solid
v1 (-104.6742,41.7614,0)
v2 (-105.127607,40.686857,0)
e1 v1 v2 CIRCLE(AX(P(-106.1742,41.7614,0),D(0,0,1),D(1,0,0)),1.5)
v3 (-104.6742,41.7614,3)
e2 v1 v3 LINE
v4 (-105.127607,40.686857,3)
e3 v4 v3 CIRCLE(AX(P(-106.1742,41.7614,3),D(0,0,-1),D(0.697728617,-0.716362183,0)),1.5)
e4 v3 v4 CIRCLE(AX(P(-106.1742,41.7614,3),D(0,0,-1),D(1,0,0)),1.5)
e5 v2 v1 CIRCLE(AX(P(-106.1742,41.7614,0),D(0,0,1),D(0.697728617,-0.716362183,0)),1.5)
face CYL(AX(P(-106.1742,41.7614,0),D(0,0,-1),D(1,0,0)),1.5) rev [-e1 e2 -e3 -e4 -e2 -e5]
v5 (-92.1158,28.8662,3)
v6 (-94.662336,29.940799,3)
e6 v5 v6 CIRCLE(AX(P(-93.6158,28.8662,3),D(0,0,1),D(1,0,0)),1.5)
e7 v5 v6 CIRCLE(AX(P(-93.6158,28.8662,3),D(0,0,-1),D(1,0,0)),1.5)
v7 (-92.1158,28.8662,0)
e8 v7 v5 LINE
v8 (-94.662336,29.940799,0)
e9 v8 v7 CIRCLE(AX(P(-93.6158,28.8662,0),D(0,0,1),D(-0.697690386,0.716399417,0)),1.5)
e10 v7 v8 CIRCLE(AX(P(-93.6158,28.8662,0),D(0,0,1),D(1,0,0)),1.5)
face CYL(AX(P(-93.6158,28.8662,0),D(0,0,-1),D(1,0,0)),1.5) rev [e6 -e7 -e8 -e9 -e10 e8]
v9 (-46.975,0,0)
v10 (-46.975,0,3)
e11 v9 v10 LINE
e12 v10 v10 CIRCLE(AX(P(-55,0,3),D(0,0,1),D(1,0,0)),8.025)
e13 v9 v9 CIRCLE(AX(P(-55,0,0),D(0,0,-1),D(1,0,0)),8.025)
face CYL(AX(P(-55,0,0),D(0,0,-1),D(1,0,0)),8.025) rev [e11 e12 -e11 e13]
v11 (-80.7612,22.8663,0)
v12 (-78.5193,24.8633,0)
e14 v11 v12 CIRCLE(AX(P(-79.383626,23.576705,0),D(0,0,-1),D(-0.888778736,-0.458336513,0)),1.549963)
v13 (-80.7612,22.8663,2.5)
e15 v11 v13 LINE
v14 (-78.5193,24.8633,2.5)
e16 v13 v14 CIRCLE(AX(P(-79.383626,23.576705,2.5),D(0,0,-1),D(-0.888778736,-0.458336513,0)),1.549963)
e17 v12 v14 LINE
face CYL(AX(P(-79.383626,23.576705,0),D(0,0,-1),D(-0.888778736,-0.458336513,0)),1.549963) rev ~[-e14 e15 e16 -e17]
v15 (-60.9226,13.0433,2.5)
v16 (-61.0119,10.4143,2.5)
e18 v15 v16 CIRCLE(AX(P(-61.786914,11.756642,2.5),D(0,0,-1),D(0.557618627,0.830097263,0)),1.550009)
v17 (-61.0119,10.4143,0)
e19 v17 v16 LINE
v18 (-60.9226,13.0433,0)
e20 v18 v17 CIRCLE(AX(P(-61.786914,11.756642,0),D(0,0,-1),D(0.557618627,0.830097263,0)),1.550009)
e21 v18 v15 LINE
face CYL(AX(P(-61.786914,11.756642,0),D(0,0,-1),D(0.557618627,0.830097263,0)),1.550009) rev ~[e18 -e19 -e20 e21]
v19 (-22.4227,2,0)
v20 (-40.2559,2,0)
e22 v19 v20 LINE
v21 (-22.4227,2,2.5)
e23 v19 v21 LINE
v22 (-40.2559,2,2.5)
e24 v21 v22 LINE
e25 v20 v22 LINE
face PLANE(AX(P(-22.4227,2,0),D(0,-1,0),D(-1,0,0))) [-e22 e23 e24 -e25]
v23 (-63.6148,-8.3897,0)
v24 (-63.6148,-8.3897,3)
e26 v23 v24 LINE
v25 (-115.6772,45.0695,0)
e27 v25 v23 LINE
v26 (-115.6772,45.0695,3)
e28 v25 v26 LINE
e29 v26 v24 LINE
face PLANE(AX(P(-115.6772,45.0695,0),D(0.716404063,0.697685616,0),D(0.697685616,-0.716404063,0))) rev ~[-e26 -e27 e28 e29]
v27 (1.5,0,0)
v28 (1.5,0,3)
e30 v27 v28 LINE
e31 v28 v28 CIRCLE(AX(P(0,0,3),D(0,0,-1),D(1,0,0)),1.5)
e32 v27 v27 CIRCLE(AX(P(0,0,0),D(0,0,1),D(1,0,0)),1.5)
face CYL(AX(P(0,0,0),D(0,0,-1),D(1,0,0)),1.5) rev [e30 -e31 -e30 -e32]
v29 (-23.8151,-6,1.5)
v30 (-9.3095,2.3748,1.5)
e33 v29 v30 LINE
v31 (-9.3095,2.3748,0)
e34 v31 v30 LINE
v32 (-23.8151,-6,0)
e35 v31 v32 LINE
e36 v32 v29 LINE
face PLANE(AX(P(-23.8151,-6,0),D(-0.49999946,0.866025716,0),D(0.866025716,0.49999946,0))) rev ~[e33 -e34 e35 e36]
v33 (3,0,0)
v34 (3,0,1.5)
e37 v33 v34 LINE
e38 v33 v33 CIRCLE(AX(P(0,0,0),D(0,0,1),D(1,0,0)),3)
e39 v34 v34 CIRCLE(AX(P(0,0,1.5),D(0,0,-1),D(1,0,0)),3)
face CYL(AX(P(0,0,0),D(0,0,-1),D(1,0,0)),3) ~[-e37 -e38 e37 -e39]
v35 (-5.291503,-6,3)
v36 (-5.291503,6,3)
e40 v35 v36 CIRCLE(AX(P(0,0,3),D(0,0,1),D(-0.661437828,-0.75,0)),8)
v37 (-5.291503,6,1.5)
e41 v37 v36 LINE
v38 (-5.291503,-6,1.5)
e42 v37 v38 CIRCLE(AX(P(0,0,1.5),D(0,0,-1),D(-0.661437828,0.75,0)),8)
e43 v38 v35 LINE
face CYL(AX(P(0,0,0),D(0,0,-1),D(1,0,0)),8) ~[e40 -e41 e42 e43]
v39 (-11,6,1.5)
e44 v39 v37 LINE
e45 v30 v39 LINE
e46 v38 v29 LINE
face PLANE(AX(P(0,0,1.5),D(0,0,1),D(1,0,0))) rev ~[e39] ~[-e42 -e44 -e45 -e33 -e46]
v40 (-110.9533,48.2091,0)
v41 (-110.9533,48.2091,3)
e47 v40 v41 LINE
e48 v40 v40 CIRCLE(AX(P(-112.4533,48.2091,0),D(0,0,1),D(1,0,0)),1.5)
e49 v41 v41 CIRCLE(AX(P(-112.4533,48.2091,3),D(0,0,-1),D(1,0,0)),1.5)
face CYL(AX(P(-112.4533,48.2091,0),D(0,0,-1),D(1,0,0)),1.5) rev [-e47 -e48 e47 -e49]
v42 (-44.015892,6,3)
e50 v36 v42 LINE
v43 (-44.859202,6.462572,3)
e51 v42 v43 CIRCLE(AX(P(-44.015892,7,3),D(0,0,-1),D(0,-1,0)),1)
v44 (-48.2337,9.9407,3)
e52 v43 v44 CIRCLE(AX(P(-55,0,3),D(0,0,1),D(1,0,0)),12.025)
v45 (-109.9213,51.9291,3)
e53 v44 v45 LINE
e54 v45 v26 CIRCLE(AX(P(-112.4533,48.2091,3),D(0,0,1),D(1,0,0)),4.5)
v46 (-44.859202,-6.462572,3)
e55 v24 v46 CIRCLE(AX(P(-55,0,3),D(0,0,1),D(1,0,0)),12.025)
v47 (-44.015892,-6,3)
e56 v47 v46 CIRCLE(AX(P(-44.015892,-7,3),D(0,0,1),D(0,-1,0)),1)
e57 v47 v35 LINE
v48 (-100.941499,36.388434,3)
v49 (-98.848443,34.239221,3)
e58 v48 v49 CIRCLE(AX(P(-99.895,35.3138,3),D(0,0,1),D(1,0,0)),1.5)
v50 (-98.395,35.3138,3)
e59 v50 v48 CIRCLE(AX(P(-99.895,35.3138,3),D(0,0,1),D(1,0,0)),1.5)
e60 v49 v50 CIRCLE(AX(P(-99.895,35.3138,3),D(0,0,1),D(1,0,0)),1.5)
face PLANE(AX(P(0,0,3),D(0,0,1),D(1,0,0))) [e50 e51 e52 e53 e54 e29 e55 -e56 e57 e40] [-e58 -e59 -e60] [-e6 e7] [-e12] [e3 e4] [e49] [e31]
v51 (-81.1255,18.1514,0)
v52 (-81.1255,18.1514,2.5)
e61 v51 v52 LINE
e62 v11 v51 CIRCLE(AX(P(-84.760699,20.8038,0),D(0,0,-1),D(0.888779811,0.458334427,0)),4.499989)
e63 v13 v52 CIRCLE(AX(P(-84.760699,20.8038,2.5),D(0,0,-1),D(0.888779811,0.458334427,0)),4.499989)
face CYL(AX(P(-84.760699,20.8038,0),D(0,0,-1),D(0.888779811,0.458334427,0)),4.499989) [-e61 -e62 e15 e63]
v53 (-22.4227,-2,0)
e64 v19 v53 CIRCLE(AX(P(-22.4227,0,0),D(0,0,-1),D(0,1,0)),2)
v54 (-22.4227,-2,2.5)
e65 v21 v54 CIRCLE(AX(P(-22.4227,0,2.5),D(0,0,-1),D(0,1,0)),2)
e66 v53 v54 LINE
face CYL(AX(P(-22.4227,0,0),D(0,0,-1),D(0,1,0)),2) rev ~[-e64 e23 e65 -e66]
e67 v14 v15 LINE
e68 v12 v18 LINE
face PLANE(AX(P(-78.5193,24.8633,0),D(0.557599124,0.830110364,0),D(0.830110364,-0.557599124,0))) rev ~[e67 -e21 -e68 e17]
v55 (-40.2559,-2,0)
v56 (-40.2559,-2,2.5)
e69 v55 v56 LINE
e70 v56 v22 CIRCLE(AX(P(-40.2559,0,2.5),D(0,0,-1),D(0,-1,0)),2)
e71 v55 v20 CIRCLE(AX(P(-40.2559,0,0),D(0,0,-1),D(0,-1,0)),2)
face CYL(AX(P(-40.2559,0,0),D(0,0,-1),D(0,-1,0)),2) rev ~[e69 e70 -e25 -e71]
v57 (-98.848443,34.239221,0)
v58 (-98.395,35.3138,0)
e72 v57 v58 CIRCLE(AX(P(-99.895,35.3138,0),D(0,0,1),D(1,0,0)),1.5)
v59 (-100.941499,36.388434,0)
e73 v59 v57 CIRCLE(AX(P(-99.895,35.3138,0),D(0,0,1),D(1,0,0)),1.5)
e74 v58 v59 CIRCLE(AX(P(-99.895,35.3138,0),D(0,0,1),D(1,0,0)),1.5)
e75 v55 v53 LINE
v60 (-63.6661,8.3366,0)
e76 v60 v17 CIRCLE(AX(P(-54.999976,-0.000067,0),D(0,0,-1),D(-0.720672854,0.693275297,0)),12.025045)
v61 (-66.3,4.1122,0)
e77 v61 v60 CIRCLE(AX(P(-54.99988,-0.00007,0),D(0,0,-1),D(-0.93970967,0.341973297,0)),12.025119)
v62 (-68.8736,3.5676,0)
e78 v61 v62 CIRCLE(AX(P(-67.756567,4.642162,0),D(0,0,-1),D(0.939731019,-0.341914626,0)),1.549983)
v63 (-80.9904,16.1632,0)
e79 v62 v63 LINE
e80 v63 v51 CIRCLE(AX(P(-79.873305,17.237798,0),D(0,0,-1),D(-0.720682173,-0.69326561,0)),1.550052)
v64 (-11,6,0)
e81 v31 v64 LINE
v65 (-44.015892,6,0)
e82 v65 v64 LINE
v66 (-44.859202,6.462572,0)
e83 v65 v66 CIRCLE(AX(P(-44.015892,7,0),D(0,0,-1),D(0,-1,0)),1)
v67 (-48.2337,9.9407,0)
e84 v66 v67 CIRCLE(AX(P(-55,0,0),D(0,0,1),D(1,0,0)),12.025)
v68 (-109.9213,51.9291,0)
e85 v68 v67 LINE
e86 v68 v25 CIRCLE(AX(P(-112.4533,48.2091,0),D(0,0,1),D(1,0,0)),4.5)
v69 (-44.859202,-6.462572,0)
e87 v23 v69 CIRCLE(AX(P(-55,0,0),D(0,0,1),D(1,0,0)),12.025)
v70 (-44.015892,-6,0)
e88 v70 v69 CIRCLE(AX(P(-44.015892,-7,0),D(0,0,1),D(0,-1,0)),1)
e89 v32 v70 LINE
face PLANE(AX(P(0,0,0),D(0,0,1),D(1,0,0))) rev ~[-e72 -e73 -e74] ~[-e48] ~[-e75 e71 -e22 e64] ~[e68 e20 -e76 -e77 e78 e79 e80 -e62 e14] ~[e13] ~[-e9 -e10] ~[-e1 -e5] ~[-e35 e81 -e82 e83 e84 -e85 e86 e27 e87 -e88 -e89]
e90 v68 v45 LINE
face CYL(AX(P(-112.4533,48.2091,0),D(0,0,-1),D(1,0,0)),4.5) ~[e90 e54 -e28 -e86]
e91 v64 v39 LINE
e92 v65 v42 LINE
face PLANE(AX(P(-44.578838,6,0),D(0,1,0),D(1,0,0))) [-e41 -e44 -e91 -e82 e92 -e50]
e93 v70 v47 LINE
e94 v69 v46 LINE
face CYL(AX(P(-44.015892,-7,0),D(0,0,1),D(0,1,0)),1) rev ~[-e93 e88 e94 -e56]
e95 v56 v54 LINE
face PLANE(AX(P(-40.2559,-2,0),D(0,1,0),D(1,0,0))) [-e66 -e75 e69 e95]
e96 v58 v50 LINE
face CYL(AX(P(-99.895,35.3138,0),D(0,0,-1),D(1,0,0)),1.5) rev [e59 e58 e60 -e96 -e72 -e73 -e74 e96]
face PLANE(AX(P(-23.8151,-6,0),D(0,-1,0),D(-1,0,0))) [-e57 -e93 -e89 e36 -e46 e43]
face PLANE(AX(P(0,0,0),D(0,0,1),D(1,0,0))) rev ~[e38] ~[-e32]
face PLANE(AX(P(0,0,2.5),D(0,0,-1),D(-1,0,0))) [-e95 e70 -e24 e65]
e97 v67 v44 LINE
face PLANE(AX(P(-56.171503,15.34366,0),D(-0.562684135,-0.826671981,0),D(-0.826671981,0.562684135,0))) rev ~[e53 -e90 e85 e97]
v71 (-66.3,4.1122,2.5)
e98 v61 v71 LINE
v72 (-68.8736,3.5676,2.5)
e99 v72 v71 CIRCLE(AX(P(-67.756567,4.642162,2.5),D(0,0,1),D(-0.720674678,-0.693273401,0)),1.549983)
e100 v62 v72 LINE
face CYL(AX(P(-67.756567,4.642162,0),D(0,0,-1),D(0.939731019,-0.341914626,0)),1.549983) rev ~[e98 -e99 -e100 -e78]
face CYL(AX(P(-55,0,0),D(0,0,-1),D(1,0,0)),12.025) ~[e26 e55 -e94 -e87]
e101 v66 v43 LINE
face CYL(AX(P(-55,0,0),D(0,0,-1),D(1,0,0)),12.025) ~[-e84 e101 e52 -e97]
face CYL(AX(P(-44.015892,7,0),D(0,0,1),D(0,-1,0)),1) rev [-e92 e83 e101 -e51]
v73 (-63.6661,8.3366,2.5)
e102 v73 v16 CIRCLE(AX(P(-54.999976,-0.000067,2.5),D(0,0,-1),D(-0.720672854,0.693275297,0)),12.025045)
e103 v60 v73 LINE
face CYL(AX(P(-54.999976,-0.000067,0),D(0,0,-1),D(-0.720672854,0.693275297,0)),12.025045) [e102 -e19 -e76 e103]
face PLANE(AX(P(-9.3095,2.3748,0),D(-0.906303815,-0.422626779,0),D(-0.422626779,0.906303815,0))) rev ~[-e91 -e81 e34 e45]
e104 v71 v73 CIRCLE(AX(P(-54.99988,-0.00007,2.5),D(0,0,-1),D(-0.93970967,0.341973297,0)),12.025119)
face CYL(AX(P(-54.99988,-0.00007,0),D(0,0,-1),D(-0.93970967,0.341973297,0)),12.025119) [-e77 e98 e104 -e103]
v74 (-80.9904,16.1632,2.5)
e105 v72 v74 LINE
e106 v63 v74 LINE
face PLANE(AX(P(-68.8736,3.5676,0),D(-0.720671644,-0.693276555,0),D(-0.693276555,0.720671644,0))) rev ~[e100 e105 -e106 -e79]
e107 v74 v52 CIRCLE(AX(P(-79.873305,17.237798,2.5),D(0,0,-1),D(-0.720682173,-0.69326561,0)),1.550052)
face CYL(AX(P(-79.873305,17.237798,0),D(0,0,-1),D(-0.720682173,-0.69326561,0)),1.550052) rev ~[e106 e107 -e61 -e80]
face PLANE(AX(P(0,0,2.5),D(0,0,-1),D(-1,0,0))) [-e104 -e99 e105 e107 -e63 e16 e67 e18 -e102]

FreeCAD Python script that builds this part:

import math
import FreeCAD as App
import Part
import Sketcher
Q = App.Units.Quantity


def edges_at(feature, points):
    """Names of the edges that pass closest to the given points."""
    edges = feature.Shape.Edges
    near = lambda p: min(range(len(edges)), key=lambda i: edges[i].distToShape(Part.Vertex(*p))[0])
    return sorted({f"Edge{near(p) + 1}" for p in points})

doc = App.newDocument("Part")
body = doc.addObject("PartDesign::Body", "Body")

# Sketch on XY plane
sketch1 = doc.addObject("Sketcher::SketchObject", "Sketch")
body.addObject(sketch1)
sketch1.AttachmentSupport = (doc.XY_Plane, [""])
sketch1.MapMode = "FlatFace"
sketch1.addGeometry([
    Part.LineSegment(App.Vector(-44.578838, -6, 0), App.Vector(-5.291503, -6, 0)),  # 0
    Part.ArcOfCircle(Part.Circle(App.Vector(0, 0, 0), App.Vector(0, 0, 1), 8), math.radians(-131.409622), math.radians(131.409622)),  # 1
    Part.LineSegment(App.Vector(-5.291503, 6, 0), App.Vector(-44.578838, 6, 0)),  # 2
    Part.ArcOfCircle(Part.Circle(App.Vector(-55, 0, 0), App.Vector(0, 0, 1), 12.025), math.radians(29.931251), math.radians(55.758199)),  # 3
    Part.LineSegment(App.Vector(-48.2337, 9.9407, 0), App.Vector(-109.9213, 51.9291, 0)),  # 4
    Part.ArcOfCircle(Part.Circle(App.Vector(-112.4533, 48.2091, 0), App.Vector(0, 0, 1), 4.5), math.radians(55.759029), math.radians(224.241023)),  # 5
    Part.LineSegment(App.Vector(-115.6772, 45.0695, 0), App.Vector(-63.6148, -8.3897, 0)),  # 6
    Part.ArcOfCircle(Part.Circle(App.Vector(-55, 0, 0), App.Vector(0, 0, 1), 12.025), math.radians(-135.758418), math.radians(-29.931251)),  # 7
    Part.Circle(App.Vector(-55, 0, 0), App.Vector(0, 0, 1), 8.025),  # 8
    Part.Circle(App.Vector(-106.1742, 41.7614, 0), App.Vector(0, 0, 1), 1.5),  # 9
    Part.Circle(App.Vector(-93.6158, 28.8662, 0), App.Vector(0, 0, 1), 1.5),  # 10
    Part.ArcOfCircle(Part.Circle(App.Vector(-99.895, 35.3138, 0), App.Vector(0, 0, 1), 1.5), math.radians(134.24006), math.radians(314.243117)),  # 11
    Part.ArcOfCircle(Part.Circle(App.Vector(-99.895, 35.3138, 0), App.Vector(0, 0, 1), 1.5), math.radians(-45.756883), math.radians(134.24006)),  # 12
    Part.Circle(App.Vector(-112.4533, 48.2091, 0), App.Vector(0, 0, 1), 1.5),  # 13
    Part.Circle(App.Vector(0, 0, 0), App.Vector(0, 0, 1), 1.5),  # 14
], False)
sketch1.addConstraint([
    Sketcher.Constraint("Coincident", 0, 2, 1, 1),
    Sketcher.Constraint("Coincident", 1, 2, 2, 1),
    Sketcher.Constraint("Coincident", 2, 2, 3, 1),
    Sketcher.Constraint("Tangent", 3, 2, 4, 1),
    Sketcher.Constraint("Tangent", 4, 2, 5, 1),
    Sketcher.Constraint("Tangent", 5, 2, 6, 1),
    Sketcher.Constraint("Tangent", 6, 2, 7, 1),
    Sketcher.Constraint("Coincident", 7, 2, 0, 1),
    Sketcher.Constraint("Tangent", 11, 1, 12, 2),
    Sketcher.Constraint("Coincident", 12, 1, 11, 2),
    Sketcher.Constraint("Horizontal", 0),
    Sketcher.Constraint("Horizontal", 2),
    Sketcher.Constraint("Coincident", 1, 3, -1, 1),
    Sketcher.Constraint("Coincident", 14, 3, -1, 1),
    Sketcher.Constraint("Coincident", 7, 3, 3, 3),
    Sketcher.Constraint("Coincident", 8, 3, 3, 3),
    Sketcher.Constraint("Coincident", 13, 3, 5, 3),
    Sketcher.Constraint("Equal", 3, 7),
    Sketcher.Constraint("Equal", 9, 10),
    Sketcher.Constraint("Equal", 10, 11),
    Sketcher.Constraint("Equal", 12, 13),
    Sketcher.Constraint("Equal", 13, 14),
    Sketcher.Constraint("Symmetric", 2, 2, 7, 2, -1),
    Sketcher.Constraint("Diameter", 9, 3.0),
    Sketcher.Constraint("Radius", 1, 8.0),
    Sketcher.Constraint("Radius", 5, 4.5),
    Sketcher.Constraint("Diameter", 8, 16.05),
    Sketcher.Constraint("DistanceX", 3, 3, -1, 1, 55.0),
    Sketcher.Constraint("DistanceY", 0, 2, -1, 1, 6.0),
    Sketcher.Constraint("Radius", 3, 12.025),
    Sketcher.Constraint("DistanceY", 5, 3, 4, 2, 3.72),
    Sketcher.Constraint("DistanceY", -1, 1, 5, 3, 48.209),
    Sketcher.Constraint("DistanceX", 11, 3, -1, 1, 99.895),
    Sketcher.Constraint("DistanceX", 5, 3, 9, 3, 6.279),
    Sketcher.Constraint("DistanceY", 10, 3, 5, 3, 19.343),
    Sketcher.Constraint("DistanceY", 11, 1, 9, 3, 5.373),
    Sketcher.Constraint("DistanceX", 11, 1, 12, 1, 2.093),
    Sketcher.Constraint("DistanceY", 10, 3, 12, 1, 5.373),
    Sketcher.Constraint("DistanceX", 10, 3, -1, 1, 93.6158),
    Sketcher.Constraint("DistanceY", -1, 1, 11, 3, 35.3138),
])
pad1 = doc.addObject("PartDesign::Pad", "Pad")
body.addObject(pad1)
pad1.Profile = sketch1
pad1.Length = 3

# Sketch on XY plane
sketch2 = doc.addObject("Sketcher::SketchObject", "Sketch001")
body.addObject(sketch2)
sketch2.AttachmentSupport = (doc.XY_Plane, [""])
sketch2.MapMode = "FlatFace"
sketch2.addGeometry([
    Part.LineSegment(App.Vector(-23.8151, -6, 0), App.Vector(-5.291503, -6, 0)),  # 0
    Part.ArcOfCircle(Part.Circle(App.Vector(0, 0, 0), App.Vector(0, 0, 1), 8), math.radians(-131.409622), math.radians(131.409622)),  # 1
    Part.LineSegment(App.Vector(-5.291503, 6, 0), App.Vector(-11, 6, 0)),  # 2
    Part.LineSegment(App.Vector(-11, 6, 0), App.Vector(-9.3095, 2.3748, 0)),  # 3
    Part.LineSegment(App.Vector(-9.3095, 2.3748, 0), App.Vector(-23.8151, -6, 0)),  # 4
    Part.Circle(App.Vector(0, 0, 0), App.Vector(0, 0, 1), 3),  # 5
], False)
sketch2.addConstraint([
    Sketcher.Constraint("Coincident", 0, 2, 1, 1),
    Sketcher.Constraint("Coincident", 1, 2, 2, 1),
    Sketcher.Constraint("Coincident", 2, 2, 3, 1),
    Sketcher.Constraint("Coincident", 3, 2, 4, 1),
    Sketcher.Constraint("Coincident", 4, 2, 0, 1),
    Sketcher.Constraint("Horizontal", 0),
    Sketcher.Constraint("Horizontal", 2),
    Sketcher.Constraint("Coincident", 1, 3, -1, 1),
    Sketcher.Constraint("Coincident", 5, 3, -1, 1),
    Sketcher.Constraint("Vertical", 0, 2, 1, 2),
    Sketcher.Constraint("Diameter", 5, 6.0),
    Sketcher.Constraint("Radius", 1, 8.0),
    Sketcher.Constraint("Angle", 3, Q("-64.9995 deg")),
    Sketcher.Constraint("Distance", 3, 4.0),
    Sketcher.Constraint("DistanceY", 0, 2, -1, 1, 6.0),
    Sketcher.Constraint("DistanceX", 2, 2, -1, 1, 11.0),
    Sketcher.Constraint("Angle", 4, Q("-150 deg")),
])
pocket1 = doc.addObject("PartDesign::Pocket", "Pocket")
body.addObject(pocket1)
pocket1.Profile = sketch2
pocket1.Length = 1.5
pocket1.Reversed = True

# Sketch on XY plane
sketch3 = doc.addObject("Sketcher::SketchObject", "Sketch002")
body.addObject(sketch3)
sketch3.AttachmentSupport = (doc.XY_Plane, [""])
sketch3.MapMode = "FlatFace"
sketch3.addGeometry([
    Part.ArcOfCircle(Part.Circle(App.Vector(-61.7868, 11.7567, 0), App.Vector(0, 0, 1), 1.549897), math.radians(-60.004322), math.radians(56.111025)),  # 0
    Part.ArcOfCircle(Part.Circle(App.Vector(-55, 0, 0), App.Vector(0, 0, 1), 12.025033), math.radians(119.996703), math.radians(136.110212)),  # 1
    Part.ArcOfCircle(Part.Circle(App.Vector(-55, 0, 0), App.Vector(0, 0, 1), 12.025033), math.radians(136.110212), math.radians(160.002971)),  # 2
    Part.ArcOfCircle(Part.Circle(App.Vector(-67.7566, 4.6422, 0), App.Vector(0, 0, 1), 1.550027), math.radians(-136.10834), math.radians(-19.994476)),  # 3
    Part.LineSegment(App.Vector(-68.8736, 3.5676, 0), App.Vector(-80.9904, 16.1632, 0)),  # 4
    Part.ArcOfCircle(Part.Circle(App.Vector(-79.8733, 17.2378, 0), App.Vector(0, 0, 1), 1.550057), math.radians(143.885663), math.radians(223.889097)),  # 5
    Part.ArcOfCircle(Part.Circle(App.Vector(-84.7607, 20.8038, 0), App.Vector(0, 0, 1), 4.49999), math.radians(-36.116116), math.radians(27.279681)),  # 6
    Part.ArcOfCircle(Part.Circle(App.Vector(-79.3836, 23.5767, 0), App.Vector(0, 0, 1), 1.549984), math.radians(56.107957), math.radians(207.279228)),  # 7
    Part.LineSegment(App.Vector(-78.5193, 24.8633, 0), App.Vector(-60.9226, 13.0433, 0)),  # 8
    Part.LineSegment(App.Vector(-22.4227, -2, 0), App.Vector(-40.2559, -2, 0)),  # 9
    Part.ArcOfCircle(Part.Circle(App.Vector(-40.2559, 0, 0), App.Vector(0, 0, 1), 2), math.radians(90), math.radians(270)),  # 10
    Part.LineSegment(App.Vector(-40.2559, 2, 0), App.Vector(-22.4227, 2, 0)),  # 11
    Part.ArcOfCircle(Part.Circle(App.Vector(-22.4227, 0, 0), App.Vector(0, 0, 1), 2), math.radians(-90), math.radians(90)),  # 12
], False)
sketch3.addConstraint([
    Sketcher.Constraint("Tangent", 0, 1, 1, 1),
    Sketcher.Constraint("Tangent", 1, 2, 2, 1),
    Sketcher.Constraint("Tangent", 2, 2, 3, 2),
    Sketcher.Constraint("Tangent", 3, 1, 4, 1),
    Sketcher.Constraint("Tangent", 4, 2, 5, 2),
    Sketcher.Constraint("Tangent", 5, 1, 6, 1),
    Sketcher.Constraint("Tangent", 6, 2, 7, 2),
    Sketcher.Constraint("Tangent", 7, 1, 8, 1),
    Sketcher.Constraint("Tangent", 8, 2, 0, 2),
    Sketcher.Constraint("Tangent", 9, 2, 10, 2),
    Sketcher.Constraint("Tangent", 10, 1, 11, 1),
    Sketcher.Constraint("Tangent", 11, 2, 12, 2),
    Sketcher.Constraint("Tangent", 12, 1, 9, 1),
    Sketcher.Constraint("Horizontal", 9),
    Sketcher.Constraint("Horizontal", 11),
    Sketcher.Constraint("Equal", 1, 2),
    Sketcher.Constraint("Equal", 0, 3),
    Sketcher.Constraint("Equal", 3, 5),
    Sketcher.Constraint("Equal", 5, 7),
    Sketcher.Constraint("PointOnObject", 1, 3, -1),
    Sketcher.Constraint("PointOnObject", 10, 3, -1),
    Sketcher.Constraint("Radius", 10, 2.0),
    Sketcher.Constraint("Radius", 6, 4.5),
    Sketcher.Constraint("Radius", 0, 1.55),
    Sketcher.Constraint("DistanceX", 1, 3, -1, 1, 55.0),
    Sketcher.Constraint("Radius", 1, 12.025),
    Sketcher.Constraint("DistanceX", 2, 2, -1, 1, 66.3),
    Sketcher.Constraint("Angle", 4, Q("133.89 deg")),
    Sketcher.Constraint("Angle", 8, Q("-33.89 deg")),
    Sketcher.Constraint("DistanceY", 0, 3, 7, 3, 11.82),
    Sketcher.Constraint("DistanceY", 1, 2, 0, 3, 3.42),
    Sketcher.Constraint("DistanceX", 9, 2, 9, 1, 17.8332),
    Sketcher.Constraint("DistanceX", 10, 3, -1, 1, 40.256),
    Sketcher.Constraint("DistanceX", 0, 1, -1, 1, 61.012),
    Sketcher.Constraint("DistanceY", 0, 3, 5, 3, 5.481),
])
pocket2 = doc.addObject("PartDesign::Pocket", "Pocket001")
body.addObject(pocket2)
pocket2.Profile = sketch3
pocket2.Length = 2.5
pocket2.Reversed = True
doc.recompute()

fillet = doc.addObject("PartDesign::Fillet", "Fillet")
body.addObject(fillet)
fillet.Base = (pocket2, edges_at(pocket2, [(-44.579, 6, 1.5), (-44.579, -6, 1.5)]))
fillet.Radius = 1

doc.recompute()
